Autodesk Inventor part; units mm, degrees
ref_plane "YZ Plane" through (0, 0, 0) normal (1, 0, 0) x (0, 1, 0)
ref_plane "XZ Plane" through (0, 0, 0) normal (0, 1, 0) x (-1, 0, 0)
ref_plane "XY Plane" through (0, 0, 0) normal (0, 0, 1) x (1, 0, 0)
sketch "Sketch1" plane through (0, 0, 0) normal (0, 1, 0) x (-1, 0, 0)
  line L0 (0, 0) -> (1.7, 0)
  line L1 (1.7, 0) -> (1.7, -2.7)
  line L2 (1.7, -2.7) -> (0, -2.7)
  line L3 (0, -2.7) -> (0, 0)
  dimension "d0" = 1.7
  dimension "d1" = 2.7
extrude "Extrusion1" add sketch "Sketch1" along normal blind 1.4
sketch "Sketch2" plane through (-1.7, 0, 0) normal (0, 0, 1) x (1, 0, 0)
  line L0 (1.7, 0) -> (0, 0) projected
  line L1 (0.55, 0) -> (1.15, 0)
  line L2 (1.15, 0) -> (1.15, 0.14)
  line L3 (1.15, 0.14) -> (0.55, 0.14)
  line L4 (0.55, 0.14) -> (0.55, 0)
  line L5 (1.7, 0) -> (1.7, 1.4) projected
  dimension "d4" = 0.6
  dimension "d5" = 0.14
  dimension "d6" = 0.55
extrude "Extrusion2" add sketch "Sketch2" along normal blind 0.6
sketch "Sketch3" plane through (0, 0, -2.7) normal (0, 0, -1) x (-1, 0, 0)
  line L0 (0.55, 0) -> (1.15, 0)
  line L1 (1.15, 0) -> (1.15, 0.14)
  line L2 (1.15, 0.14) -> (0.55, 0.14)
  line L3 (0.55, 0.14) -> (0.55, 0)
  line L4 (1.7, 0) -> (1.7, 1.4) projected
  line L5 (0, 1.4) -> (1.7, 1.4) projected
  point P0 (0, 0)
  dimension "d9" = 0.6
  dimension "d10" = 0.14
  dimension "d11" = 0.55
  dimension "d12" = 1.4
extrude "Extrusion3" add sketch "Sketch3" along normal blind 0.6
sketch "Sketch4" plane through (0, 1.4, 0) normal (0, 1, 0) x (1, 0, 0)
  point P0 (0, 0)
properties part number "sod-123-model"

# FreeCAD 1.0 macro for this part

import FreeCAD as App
import Part
import Sketcher
from FreeCAD import Vector
Q = App.Units.Quantity


def add_polygon(sketch, points):
    """Adds a closed chain of lines whose ends are joined by coincident constraints."""
    first, n = sketch.GeometryCount, len(points)
    for a, b in zip(points, points[1:] + points[:1]):
        sketch.addGeometry(Part.LineSegment(App.Vector(*a, 0), App.Vector(*b, 0)), False)
    for i in range(n):
        sketch.addConstraint(Sketcher.Constraint("Coincident", first + i, 2, first + (i + 1) % n, 1))

doc = App.newDocument("Part")
body = doc.addObject("PartDesign::Body", "Body")

# Sketch on XZ plane
sketch1 = body.newObject("Sketcher::SketchObject", "Sketch")
sketch1.AttachmentSupport = (doc.getObject("XZ_Plane"), [""])
sketch1.MapMode = "FlatFace"
add_polygon(sketch1, [(-1.7, 0), (0, 0), (0, -2.7), (-1.7, -2.7)])  # lines 0-3
sketch1.addConstraint([
    Sketcher.Constraint("Horizontal", 0),
    Sketcher.Constraint("Vertical", 1),
    Sketcher.Constraint("Horizontal", 2),
    Sketcher.Constraint("Vertical", 3),
    Sketcher.Constraint("Coincident", 0, 2, -1, 1),
    Sketcher.Constraint("DistanceX", 0, 1, 0, 2, Q("1.7 mm")),
    Sketcher.Constraint("DistanceY", 1, 2, 1, 1, Q("2.7 mm")),
])
pad1 = body.newObject("PartDesign::Pad", "Pad")
pad1.Profile = sketch1
pad1.Length = 1.4
pad1.Reversed = True

# Sketch on XY plane
sketch2 = body.newObject("Sketcher::SketchObject", "Sketch001")
sketch2.AttachmentSupport = (doc.getObject("XY_Plane"), [""])
sketch2.MapMode = "FlatFace"
add_polygon(sketch2, [(-1.15, 0), (-0.55, 0), (-0.55, 0.14), (-1.15, 0.14)])  # lines 0-3
sketch2.addConstraint([
    Sketcher.Constraint("Horizontal", 0),
    Sketcher.Constraint("Vertical", 1),
    Sketcher.Constraint("Horizontal", 2),
    Sketcher.Constraint("Vertical", 3),
    Sketcher.Constraint("PointOnObject", 0, 2, -1),
    Sketcher.Constraint("DistanceX", 0, 1, 0, 2, Q("0.6 mm")),
    Sketcher.Constraint("DistanceY", 1, 1, 1, 2, Q("0.14 mm")),
    Sketcher.Constraint("DistanceX", 0, 2, -1, 1, Q("0.55 mm")),
])
pad2 = body.newObject("PartDesign::Pad", "Pad001")
pad2.Profile = sketch2
pad2.Length = 0.6

# Sketch on XY plane
sketch3 = body.newObject("Sketcher::SketchObject", "Sketch002")
sketch3.AttachmentSupport = (doc.getObject("XY_Plane"), [""])
sketch3.MapMode = "FlatFace"
sketch3.AttachmentOffset = App.Placement(Vector(0, 0, -2.7), App.Rotation())
add_polygon(sketch3, [(-0.55, 0.14), (-0.55, 0), (-1.15, 0), (-1.15, 0.14)])  # lines 0-3
sketch3.addConstraint([
    Sketcher.Constraint("Vertical", 0),
    Sketcher.Constraint("Horizontal", 1),
    Sketcher.Constraint("Vertical", 2),
    Sketcher.Constraint("Horizontal", 3),
    Sketcher.Constraint("PointOnObject", 0, 2, -1),
    Sketcher.Constraint("DistanceX", 1, 2, 1, 1, Q("0.6 mm")),
    Sketcher.Constraint("DistanceY", 0, 2, 0, 1, Q("0.14 mm")),
    Sketcher.Constraint("DistanceX", 0, 2, -1, 1, Q("0.55 mm")),
])
pad3 = body.newObject("PartDesign::Pad", "Pad002")
pad3.Profile = sketch3
pad3.Length = 0.6
pad3.Reversed = True

doc.recompute()
